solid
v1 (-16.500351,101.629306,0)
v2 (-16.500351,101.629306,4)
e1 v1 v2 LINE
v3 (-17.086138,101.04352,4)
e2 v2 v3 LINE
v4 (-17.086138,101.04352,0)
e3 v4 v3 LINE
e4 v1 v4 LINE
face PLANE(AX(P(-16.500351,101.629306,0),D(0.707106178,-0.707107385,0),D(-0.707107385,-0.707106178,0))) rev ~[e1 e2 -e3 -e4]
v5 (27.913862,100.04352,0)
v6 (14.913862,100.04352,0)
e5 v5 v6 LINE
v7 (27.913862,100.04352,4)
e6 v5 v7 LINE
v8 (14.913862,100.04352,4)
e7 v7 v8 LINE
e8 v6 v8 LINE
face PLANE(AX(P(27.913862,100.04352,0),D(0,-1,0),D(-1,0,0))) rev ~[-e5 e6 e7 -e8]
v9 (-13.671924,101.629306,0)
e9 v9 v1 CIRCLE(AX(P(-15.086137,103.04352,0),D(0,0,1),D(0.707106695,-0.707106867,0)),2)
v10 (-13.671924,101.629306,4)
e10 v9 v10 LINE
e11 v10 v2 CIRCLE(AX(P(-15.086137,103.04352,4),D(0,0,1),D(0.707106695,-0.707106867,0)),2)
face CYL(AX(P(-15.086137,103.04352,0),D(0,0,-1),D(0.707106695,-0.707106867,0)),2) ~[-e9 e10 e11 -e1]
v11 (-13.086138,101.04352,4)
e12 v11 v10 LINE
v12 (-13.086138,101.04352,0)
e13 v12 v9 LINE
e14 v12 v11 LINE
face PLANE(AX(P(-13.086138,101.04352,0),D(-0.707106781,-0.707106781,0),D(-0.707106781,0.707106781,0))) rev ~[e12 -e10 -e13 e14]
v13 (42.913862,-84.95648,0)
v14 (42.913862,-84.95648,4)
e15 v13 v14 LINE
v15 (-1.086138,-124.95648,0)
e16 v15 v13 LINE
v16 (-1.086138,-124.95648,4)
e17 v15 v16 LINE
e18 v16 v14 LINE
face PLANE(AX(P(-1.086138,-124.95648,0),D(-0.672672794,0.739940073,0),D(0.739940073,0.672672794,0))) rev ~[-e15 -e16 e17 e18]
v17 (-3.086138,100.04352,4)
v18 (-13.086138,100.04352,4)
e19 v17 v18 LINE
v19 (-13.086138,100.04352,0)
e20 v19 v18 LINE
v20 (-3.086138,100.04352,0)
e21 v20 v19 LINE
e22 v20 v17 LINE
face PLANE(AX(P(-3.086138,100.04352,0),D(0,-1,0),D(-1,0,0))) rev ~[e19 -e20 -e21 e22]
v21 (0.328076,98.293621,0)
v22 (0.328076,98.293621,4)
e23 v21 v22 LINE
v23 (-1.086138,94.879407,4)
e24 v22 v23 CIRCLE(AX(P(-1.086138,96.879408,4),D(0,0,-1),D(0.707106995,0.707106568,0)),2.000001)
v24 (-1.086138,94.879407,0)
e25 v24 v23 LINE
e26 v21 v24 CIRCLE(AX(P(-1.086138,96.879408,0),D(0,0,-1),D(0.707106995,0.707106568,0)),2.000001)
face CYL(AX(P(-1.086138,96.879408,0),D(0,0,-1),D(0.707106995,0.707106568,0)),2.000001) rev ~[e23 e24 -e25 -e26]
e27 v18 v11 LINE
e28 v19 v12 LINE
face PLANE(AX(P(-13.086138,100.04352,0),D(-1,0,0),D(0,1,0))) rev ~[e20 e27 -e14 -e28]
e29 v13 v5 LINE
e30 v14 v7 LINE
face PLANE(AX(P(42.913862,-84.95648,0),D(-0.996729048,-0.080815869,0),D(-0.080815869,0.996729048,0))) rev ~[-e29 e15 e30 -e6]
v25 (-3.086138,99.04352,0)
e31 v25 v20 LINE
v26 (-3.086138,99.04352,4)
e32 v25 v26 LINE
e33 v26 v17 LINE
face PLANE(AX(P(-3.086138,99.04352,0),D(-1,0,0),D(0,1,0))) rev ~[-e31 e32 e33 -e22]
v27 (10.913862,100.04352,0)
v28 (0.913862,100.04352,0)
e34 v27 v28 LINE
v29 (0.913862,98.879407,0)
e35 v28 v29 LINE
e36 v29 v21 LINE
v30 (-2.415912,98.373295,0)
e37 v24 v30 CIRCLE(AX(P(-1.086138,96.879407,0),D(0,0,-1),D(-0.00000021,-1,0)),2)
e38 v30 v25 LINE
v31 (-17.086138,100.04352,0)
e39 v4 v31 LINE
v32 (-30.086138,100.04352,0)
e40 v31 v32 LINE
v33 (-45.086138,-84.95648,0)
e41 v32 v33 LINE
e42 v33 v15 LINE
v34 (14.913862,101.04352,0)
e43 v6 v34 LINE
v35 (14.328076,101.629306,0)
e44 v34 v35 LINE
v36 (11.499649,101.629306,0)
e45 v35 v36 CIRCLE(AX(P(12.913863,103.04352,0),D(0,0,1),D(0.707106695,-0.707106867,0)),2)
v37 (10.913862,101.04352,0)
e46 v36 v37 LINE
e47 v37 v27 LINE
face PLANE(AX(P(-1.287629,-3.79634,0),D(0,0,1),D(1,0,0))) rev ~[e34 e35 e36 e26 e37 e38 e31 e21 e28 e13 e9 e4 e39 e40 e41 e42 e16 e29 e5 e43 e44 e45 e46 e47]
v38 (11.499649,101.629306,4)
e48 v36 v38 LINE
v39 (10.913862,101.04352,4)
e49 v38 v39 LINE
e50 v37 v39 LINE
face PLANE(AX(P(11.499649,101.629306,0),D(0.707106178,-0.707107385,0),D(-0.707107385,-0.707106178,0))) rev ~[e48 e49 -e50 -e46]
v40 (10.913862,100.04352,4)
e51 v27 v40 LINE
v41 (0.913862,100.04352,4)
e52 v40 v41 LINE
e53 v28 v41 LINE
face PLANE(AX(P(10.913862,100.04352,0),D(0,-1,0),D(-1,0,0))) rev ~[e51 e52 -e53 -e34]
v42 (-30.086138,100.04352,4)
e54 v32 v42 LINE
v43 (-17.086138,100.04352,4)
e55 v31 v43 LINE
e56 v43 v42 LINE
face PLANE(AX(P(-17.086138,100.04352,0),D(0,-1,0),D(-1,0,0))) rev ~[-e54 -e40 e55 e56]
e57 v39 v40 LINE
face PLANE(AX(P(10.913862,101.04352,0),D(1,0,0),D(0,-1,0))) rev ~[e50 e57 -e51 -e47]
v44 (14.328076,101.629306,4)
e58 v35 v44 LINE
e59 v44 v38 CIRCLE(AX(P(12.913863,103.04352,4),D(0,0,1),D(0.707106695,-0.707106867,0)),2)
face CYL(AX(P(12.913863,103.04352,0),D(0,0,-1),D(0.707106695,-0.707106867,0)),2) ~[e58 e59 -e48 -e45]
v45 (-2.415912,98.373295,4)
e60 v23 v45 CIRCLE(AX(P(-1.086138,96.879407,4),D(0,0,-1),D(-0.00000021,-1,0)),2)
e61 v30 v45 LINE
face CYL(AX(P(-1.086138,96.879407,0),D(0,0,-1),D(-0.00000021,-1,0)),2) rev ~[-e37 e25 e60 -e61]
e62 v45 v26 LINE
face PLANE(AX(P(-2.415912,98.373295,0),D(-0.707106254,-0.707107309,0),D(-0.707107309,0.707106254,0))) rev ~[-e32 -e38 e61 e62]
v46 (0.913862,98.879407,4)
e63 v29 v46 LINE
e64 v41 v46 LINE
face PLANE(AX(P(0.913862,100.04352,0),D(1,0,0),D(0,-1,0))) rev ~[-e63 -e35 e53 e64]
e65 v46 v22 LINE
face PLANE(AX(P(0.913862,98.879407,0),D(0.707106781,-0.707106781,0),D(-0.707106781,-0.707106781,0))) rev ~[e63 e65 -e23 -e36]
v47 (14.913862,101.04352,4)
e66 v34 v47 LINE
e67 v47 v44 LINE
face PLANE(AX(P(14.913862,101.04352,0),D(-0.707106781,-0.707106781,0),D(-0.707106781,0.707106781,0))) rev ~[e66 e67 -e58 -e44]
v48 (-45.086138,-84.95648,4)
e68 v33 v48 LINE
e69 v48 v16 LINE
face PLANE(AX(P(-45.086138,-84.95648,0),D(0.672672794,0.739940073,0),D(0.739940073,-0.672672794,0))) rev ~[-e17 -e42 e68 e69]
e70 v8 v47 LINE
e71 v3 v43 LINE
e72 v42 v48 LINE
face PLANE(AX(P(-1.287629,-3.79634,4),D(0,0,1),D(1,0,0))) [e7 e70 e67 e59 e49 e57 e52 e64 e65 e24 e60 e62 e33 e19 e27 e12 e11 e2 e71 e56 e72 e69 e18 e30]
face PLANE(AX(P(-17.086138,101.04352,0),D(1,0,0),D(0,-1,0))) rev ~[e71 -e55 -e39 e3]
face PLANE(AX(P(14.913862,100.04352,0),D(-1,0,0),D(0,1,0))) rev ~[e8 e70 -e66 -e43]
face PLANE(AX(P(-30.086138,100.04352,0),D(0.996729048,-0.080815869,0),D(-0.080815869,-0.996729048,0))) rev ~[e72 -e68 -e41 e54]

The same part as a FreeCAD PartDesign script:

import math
import FreeCAD as App
import Part
import Sketcher
from FreeCAD import Vector
Q = App.Units.Quantity

doc = App.newDocument("Part")
body = doc.addObject("PartDesign::Body", "Body")

sketch1 = body.newObject("Sketcher::SketchObject", "Sketch")
sketch1.AttachmentSupport = (doc.getObject("XY_Plane"), [""])
sketch1.MapMode = "FlatFace"
sketch1.addGeometry([
    Part.LineSegment(Vector(0.913862, 100.04352, 0), Vector(0.913862, 98.879407, 0)),
    Part.LineSegment(Vector(0.913862, 98.879407, 0), Vector(0.328076, 98.293621, 0)),
    Part.ArcOfCircle(Part.Circle(Vector(-1.086138, 96.879408, 0), Vector(0, 0, 1), 2.000001), math.radians(-89.99999), math.radians(44.999983)),
    Part.ArcOfCircle(Part.Circle(Vector(-1.086138, 96.879407, 0), Vector(0, 0, 1), 2), math.radians(131.673668), math.radians(269.999988)),
    Part.LineSegment(Vector(-2.415912, 98.373295, 0), Vector(-3.086138, 99.04352, 0)),
    Part.LineSegment(Vector(-3.086138, 99.04352, 0), Vector(-3.086138, 100.04352, 0)),
    Part.LineSegment(Vector(-3.086138, 100.04352, 0), Vector(-13.086138, 100.04352, 0)),
    Part.LineSegment(Vector(-13.086138, 100.04352, 0), Vector(-13.086138, 101.04352, 0)),
    Part.LineSegment(Vector(-13.086138, 101.04352, 0), Vector(-13.671924, 101.629306, 0)),
    Part.ArcOfCircle(Part.Circle(Vector(-15.086137, 103.04352, 0), Vector(0, 0, 1), 2), math.radians(-45.000007), math.radians(225.000007)),
    Part.LineSegment(Vector(-16.500351, 101.629306, 0), Vector(-17.086138, 101.04352, 0)),
    Part.LineSegment(Vector(-17.086138, 101.04352, 0), Vector(-17.086138, 100.04352, 0)),
    Part.LineSegment(Vector(-17.086138, 100.04352, 0), Vector(-30.086138, 100.04352, 0)),
    Part.LineSegment(Vector(-30.086138, 100.04352, 0), Vector(-45.086138, -84.95648, 0)),
    Part.LineSegment(Vector(-45.086138, -84.95648, 0), Vector(-1.086138, -124.95648, 0)),
    Part.LineSegment(Vector(-1.086138, -124.95648, 0), Vector(42.913862, -84.95648, 0)),
    Part.LineSegment(Vector(42.913862, -84.95648, 0), Vector(27.913862, 100.04352, 0)),
    Part.LineSegment(Vector(27.913862, 100.04352, 0), Vector(14.913862, 100.04352, 0)),
    Part.LineSegment(Vector(14.913862, 100.04352, 0), Vector(14.913862, 101.04352, 0)),
    Part.LineSegment(Vector(14.913862, 101.04352, 0), Vector(14.328076, 101.629306, 0)),
    Part.ArcOfCircle(Part.Circle(Vector(12.913863, 103.04352, 0), Vector(0, 0, 1), 2), math.radians(-45.000007), math.radians(225.000007)),
    Part.LineSegment(Vector(11.499649, 101.629306, 0), Vector(10.913862, 101.04352, 0)),
    Part.LineSegment(Vector(10.913862, 101.04352, 0), Vector(10.913862, 100.04352, 0)),
    Part.LineSegment(Vector(10.913862, 100.04352, 0), Vector(0.913862, 100.04352, 0)),
], False)
sketch1.addConstraint([
    Sketcher.Constraint("Coincident", 0, 2, 1, 1),
    Sketcher.Constraint("Coincident", 1, 2, 2, 2),
    Sketcher.Constraint("Tangent", 2, 1, 3, 2),
    Sketcher.Constraint("Coincident", 3, 1, 4, 1),
    Sketcher.Constraint("Coincident", 4, 2, 5, 1),
    Sketcher.Constraint("Coincident", 5, 2, 6, 1),
    Sketcher.Constraint("Coincident", 6, 2, 7, 1),
    Sketcher.Constraint("Coincident", 7, 2, 8, 1),
    Sketcher.Constraint("Coincident", 8, 2, 9, 1),
    Sketcher.Constraint("Coincident", 9, 2, 10, 1),
    Sketcher.Constraint("Coincident", 10, 2, 11, 1),
    Sketcher.Constraint("Coincident", 11, 2, 12, 1),
    Sketcher.Constraint("Coincident", 12, 2, 13, 1),
    Sketcher.Constraint("Coincident", 13, 2, 14, 1),
    Sketcher.Constraint("Coincident", 14, 2, 15, 1),
    Sketcher.Constraint("Coincident", 15, 2, 16, 1),
    Sketcher.Constraint("Coincident", 16, 2, 17, 1),
    Sketcher.Constraint("Coincident", 17, 2, 18, 1),
    Sketcher.Constraint("Coincident", 18, 2, 19, 1),
    Sketcher.Constraint("Coincident", 19, 2, 20, 1),
    Sketcher.Constraint("Coincident", 20, 2, 21, 1),
    Sketcher.Constraint("Coincident", 21, 2, 22, 1),
    Sketcher.Constraint("Coincident", 22, 2, 23, 1),
    Sketcher.Constraint("Coincident", 23, 2, 0, 1),
    Sketcher.Constraint("Vertical", 0),
    Sketcher.Constraint("Vertical", 5),
    Sketcher.Constraint("Horizontal", 6),
    Sketcher.Constraint("Vertical", 7),
    Sketcher.Constraint("Vertical", 11),
    Sketcher.Constraint("Horizontal", 12),
    Sketcher.Constraint("Horizontal", 17),
    Sketcher.Constraint("Vertical", 18),
    Sketcher.Constraint("Vertical", 22),
    Sketcher.Constraint("Horizontal", 23),
    Sketcher.Constraint("Equal", 2, 3),
    Sketcher.Constraint("Equal", 3, 9),
    Sketcher.Constraint("Equal", 9, 20),
    Sketcher.Constraint("Perpendicular", 1, 4),
    Sketcher.Constraint("Parallel", 4, 8),
    Sketcher.Constraint("Perpendicular", 8, 10),
    Sketcher.Constraint("Perpendicular", 10, 19),
    Sketcher.Constraint("Perpendicular", 19, 21),
    Sketcher.Constraint("Horizontal", 9, 3, 20, 3),
    Sketcher.Constraint("Horizontal", 8, 2, 9, 2),
    Sketcher.Constraint("Horizontal", 7, 2, 10, 2),
    Sketcher.Constraint("Horizontal", 6, 2, 11, 2),
    Sketcher.Constraint("Horizontal", 13, 2, 15, 2),
    Sketcher.Constraint("Horizontal", 12, 2, 16, 2),
    Sketcher.Constraint("Horizontal", 10, 2, 18, 2),
    Sketcher.Constraint("Horizontal", 9, 2, 19, 2),
    Sketcher.Constraint("Horizontal", 19, 2, 20, 2),
    Sketcher.Constraint("Horizontal", 18, 2, 21, 2),
    Sketcher.Constraint("Horizontal", 17, 2, 22, 2),
    Sketcher.Constraint("Vertical", 3, 3, 2, 1),
    Sketcher.Constraint("Vertical", 2, 1, 14, 2),
    Sketcher.Constraint("Equal", 12, 17),
    Sketcher.Constraint("Equal", 6, 23),
    Sketcher.Constraint("Equal", 5, 7),
    Sketcher.Constraint("Equal", 1, 8),
    Sketcher.Constraint("Equal", 8, 10),
    Sketcher.Constraint("Equal", 14, 15),
    Sketcher.Constraint("Equal", 13, 16),
    Sketcher.Constraint("Radius", 2, Q("2.000001 mm")),
    Sketcher.Constraint("DistanceX", 6, 2, 6, 1, Q("10 mm")),
    Sketcher.Constraint("DistanceX", 12, 2, 12, 1, Q("13 mm")),
    Sketcher.Constraint("DistanceY", 5, 1, 5, 2, Q("1 mm")),
    Sketcher.Constraint("DistanceX", 9, 3, 2, 3, Q("13.999999 mm")),
    Sketcher.Constraint("DistanceX", 3, 3, 0, 2, Q("2 mm")),
    Sketcher.Constraint("DistanceY", 3, 3, 0, 2, Q("2 mm")),
    Sketcher.Constraint("DistanceX", 13, 2, 2, 1, Q("44 mm")),
    Sketcher.Constraint("DistanceY", 13, 2, 12, 2, Q("185 mm")),
    Sketcher.Constraint("DistanceY", 14, 2, 13, 2, Q("40 mm")),
    Sketcher.Constraint("DistanceY", 1, 2, 20, 3, Q("4.749899 mm")),
    Sketcher.Constraint("DistanceX", 2, 3, -1, 1, Q("1.086138 mm")),
    Sketcher.Constraint("DistanceY", -1, 1, 9, 3, Q("103.04352 mm")),
])
pad1 = body.newObject("PartDesign::Pad", "Pad")
pad1.Profile = sketch1
pad1.Length = 4

doc.recompute()
